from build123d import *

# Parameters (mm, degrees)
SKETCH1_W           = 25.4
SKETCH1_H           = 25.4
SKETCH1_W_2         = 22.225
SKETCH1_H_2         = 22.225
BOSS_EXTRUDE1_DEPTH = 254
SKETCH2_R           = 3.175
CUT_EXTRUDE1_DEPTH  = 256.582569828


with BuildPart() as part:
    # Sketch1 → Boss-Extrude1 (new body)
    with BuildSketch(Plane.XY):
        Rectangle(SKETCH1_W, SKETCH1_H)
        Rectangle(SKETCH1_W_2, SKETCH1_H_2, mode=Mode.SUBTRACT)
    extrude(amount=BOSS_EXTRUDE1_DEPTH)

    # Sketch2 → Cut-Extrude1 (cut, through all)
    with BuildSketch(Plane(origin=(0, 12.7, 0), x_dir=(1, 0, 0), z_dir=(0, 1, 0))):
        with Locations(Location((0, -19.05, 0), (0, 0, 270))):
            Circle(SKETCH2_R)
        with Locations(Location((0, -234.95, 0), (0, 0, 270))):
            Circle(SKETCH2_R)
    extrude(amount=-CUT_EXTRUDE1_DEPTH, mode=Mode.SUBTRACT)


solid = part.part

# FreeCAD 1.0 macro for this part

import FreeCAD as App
import Part
import Sketcher
from FreeCAD import Vector
Q = App.Units.Quantity

doc = App.newDocument("Part")
body = doc.addObject("PartDesign::Body", "Body")

# Sketch on XY plane
sketch1 = doc.addObject("Sketcher::SketchObject", "Sketch")
body.addObject(sketch1)
sketch1.AttachmentSupport = (doc.XY_Plane, [""])
sketch1.MapMode = "FlatFace"
sketch1.addGeometry([
    Part.LineSegment(Vector(-12.7, 12.7, 0), Vector(-12.7, -12.7, 0)),  # 0
    Part.LineSegment(Vector(-12.7, -12.7, 0), Vector(12.7, -12.7, 0)),  # 1
    Part.LineSegment(Vector(12.7, -12.7, 0), Vector(12.7, 12.7, 0)),  # 2
    Part.LineSegment(Vector(12.7, 12.7, 0), Vector(-12.7, 12.7, 0)),  # 3
    Part.LineSegment(Vector(11.1125, -11.1125, 0), Vector(-11.1125, -11.1125, 0)),  # 4
    Part.LineSegment(Vector(-11.1125, -11.1125, 0), Vector(-11.1125, 11.1125, 0)),  # 5
    Part.LineSegment(Vector(-11.1125, 11.1125, 0), Vector(11.1125, 11.1125, 0)),  # 6
    Part.LineSegment(Vector(11.1125, 11.1125, 0), Vector(11.1125, -11.1125, 0)),  # 7
], False)
sketch1.addConstraint([
    Sketcher.Constraint("Coincident", 0, 2, 1, 1),
    Sketcher.Constraint("Coincident", 1, 2, 2, 1),
    Sketcher.Constraint("Coincident", 2, 2, 3, 1),
    Sketcher.Constraint("Coincident", 3, 2, 0, 1),
    Sketcher.Constraint("Coincident", 4, 2, 5, 1),
    Sketcher.Constraint("Coincident", 5, 2, 6, 1),
    Sketcher.Constraint("Coincident", 6, 2, 7, 1),
    Sketcher.Constraint("Coincident", 7, 2, 4, 1),
    Sketcher.Constraint("Vertical", 0),
    Sketcher.Constraint("Horizontal", 1),
    Sketcher.Constraint("Vertical", 2),
    Sketcher.Constraint("Horizontal", 3),
    Sketcher.Constraint("Horizontal", 4),
    Sketcher.Constraint("Vertical", 5),
    Sketcher.Constraint("Horizontal", 6),
    Sketcher.Constraint("Vertical", 7),
    Sketcher.Constraint("Symmetric", 0, 2, 2, 2, -1, 1),
    Sketcher.Constraint("Symmetric", 4, 2, 6, 2, -1, 1),
    Sketcher.Constraint("Equal", 3, 0),
    Sketcher.Constraint("Equal", 6, 5),
    Sketcher.Constraint("DistanceX", 1, 1, 1, 2, Q("1 in")),
    Sketcher.Constraint("DistanceX", 4, 2, 4, 1, Q("0.875 in")),
])
pad1 = doc.addObject("PartDesign::Pad", "Pad")
body.addObject(pad1)
pad1.Profile = sketch1
pad1.Length = Q("10 in")

# Sketch on XZ plane
sketch2 = doc.addObject("Sketcher::SketchObject", "Sketch001")
body.addObject(sketch2)
sketch2.AttachmentSupport = (doc.XZ_Plane, [""])
sketch2.MapMode = "FlatFace"
sketch2.AttachmentOffset = App.Placement(Vector(0, 0, -0.5 * 25.4), App.Rotation())
sketch2.addGeometry([
    Part.Circle(Vector(0, 19.05, 0), Vector(0, 0, 1), 3.175),
    Part.Circle(Vector(0, 234.95, 0), Vector(0, 0, 1), 3.175),
], False)
sketch2.addConstraint([
    Sketcher.Constraint("Equal", 0, 1),
    Sketcher.Constraint("PointOnObject", 0, 3, -2),
    Sketcher.Constraint("PointOnObject", 1, 3, -2),
    Sketcher.Constraint("Diameter", 0, Q("0.25 in")),
    Sketcher.Constraint("DistanceY", 0, 3, 1, 3, Q("8.5 in")),
    Sketcher.Constraint("DistanceY", -1, 1, 0, 3, Q("0.75 in")),
])
pocket1 = doc.addObject("PartDesign::Pocket", "Pocket")
body.addObject(pocket1)
pocket1.Profile = sketch2
pocket1.Type = "ThroughAll"
pocket1.Reversed = True

doc.recompute()
